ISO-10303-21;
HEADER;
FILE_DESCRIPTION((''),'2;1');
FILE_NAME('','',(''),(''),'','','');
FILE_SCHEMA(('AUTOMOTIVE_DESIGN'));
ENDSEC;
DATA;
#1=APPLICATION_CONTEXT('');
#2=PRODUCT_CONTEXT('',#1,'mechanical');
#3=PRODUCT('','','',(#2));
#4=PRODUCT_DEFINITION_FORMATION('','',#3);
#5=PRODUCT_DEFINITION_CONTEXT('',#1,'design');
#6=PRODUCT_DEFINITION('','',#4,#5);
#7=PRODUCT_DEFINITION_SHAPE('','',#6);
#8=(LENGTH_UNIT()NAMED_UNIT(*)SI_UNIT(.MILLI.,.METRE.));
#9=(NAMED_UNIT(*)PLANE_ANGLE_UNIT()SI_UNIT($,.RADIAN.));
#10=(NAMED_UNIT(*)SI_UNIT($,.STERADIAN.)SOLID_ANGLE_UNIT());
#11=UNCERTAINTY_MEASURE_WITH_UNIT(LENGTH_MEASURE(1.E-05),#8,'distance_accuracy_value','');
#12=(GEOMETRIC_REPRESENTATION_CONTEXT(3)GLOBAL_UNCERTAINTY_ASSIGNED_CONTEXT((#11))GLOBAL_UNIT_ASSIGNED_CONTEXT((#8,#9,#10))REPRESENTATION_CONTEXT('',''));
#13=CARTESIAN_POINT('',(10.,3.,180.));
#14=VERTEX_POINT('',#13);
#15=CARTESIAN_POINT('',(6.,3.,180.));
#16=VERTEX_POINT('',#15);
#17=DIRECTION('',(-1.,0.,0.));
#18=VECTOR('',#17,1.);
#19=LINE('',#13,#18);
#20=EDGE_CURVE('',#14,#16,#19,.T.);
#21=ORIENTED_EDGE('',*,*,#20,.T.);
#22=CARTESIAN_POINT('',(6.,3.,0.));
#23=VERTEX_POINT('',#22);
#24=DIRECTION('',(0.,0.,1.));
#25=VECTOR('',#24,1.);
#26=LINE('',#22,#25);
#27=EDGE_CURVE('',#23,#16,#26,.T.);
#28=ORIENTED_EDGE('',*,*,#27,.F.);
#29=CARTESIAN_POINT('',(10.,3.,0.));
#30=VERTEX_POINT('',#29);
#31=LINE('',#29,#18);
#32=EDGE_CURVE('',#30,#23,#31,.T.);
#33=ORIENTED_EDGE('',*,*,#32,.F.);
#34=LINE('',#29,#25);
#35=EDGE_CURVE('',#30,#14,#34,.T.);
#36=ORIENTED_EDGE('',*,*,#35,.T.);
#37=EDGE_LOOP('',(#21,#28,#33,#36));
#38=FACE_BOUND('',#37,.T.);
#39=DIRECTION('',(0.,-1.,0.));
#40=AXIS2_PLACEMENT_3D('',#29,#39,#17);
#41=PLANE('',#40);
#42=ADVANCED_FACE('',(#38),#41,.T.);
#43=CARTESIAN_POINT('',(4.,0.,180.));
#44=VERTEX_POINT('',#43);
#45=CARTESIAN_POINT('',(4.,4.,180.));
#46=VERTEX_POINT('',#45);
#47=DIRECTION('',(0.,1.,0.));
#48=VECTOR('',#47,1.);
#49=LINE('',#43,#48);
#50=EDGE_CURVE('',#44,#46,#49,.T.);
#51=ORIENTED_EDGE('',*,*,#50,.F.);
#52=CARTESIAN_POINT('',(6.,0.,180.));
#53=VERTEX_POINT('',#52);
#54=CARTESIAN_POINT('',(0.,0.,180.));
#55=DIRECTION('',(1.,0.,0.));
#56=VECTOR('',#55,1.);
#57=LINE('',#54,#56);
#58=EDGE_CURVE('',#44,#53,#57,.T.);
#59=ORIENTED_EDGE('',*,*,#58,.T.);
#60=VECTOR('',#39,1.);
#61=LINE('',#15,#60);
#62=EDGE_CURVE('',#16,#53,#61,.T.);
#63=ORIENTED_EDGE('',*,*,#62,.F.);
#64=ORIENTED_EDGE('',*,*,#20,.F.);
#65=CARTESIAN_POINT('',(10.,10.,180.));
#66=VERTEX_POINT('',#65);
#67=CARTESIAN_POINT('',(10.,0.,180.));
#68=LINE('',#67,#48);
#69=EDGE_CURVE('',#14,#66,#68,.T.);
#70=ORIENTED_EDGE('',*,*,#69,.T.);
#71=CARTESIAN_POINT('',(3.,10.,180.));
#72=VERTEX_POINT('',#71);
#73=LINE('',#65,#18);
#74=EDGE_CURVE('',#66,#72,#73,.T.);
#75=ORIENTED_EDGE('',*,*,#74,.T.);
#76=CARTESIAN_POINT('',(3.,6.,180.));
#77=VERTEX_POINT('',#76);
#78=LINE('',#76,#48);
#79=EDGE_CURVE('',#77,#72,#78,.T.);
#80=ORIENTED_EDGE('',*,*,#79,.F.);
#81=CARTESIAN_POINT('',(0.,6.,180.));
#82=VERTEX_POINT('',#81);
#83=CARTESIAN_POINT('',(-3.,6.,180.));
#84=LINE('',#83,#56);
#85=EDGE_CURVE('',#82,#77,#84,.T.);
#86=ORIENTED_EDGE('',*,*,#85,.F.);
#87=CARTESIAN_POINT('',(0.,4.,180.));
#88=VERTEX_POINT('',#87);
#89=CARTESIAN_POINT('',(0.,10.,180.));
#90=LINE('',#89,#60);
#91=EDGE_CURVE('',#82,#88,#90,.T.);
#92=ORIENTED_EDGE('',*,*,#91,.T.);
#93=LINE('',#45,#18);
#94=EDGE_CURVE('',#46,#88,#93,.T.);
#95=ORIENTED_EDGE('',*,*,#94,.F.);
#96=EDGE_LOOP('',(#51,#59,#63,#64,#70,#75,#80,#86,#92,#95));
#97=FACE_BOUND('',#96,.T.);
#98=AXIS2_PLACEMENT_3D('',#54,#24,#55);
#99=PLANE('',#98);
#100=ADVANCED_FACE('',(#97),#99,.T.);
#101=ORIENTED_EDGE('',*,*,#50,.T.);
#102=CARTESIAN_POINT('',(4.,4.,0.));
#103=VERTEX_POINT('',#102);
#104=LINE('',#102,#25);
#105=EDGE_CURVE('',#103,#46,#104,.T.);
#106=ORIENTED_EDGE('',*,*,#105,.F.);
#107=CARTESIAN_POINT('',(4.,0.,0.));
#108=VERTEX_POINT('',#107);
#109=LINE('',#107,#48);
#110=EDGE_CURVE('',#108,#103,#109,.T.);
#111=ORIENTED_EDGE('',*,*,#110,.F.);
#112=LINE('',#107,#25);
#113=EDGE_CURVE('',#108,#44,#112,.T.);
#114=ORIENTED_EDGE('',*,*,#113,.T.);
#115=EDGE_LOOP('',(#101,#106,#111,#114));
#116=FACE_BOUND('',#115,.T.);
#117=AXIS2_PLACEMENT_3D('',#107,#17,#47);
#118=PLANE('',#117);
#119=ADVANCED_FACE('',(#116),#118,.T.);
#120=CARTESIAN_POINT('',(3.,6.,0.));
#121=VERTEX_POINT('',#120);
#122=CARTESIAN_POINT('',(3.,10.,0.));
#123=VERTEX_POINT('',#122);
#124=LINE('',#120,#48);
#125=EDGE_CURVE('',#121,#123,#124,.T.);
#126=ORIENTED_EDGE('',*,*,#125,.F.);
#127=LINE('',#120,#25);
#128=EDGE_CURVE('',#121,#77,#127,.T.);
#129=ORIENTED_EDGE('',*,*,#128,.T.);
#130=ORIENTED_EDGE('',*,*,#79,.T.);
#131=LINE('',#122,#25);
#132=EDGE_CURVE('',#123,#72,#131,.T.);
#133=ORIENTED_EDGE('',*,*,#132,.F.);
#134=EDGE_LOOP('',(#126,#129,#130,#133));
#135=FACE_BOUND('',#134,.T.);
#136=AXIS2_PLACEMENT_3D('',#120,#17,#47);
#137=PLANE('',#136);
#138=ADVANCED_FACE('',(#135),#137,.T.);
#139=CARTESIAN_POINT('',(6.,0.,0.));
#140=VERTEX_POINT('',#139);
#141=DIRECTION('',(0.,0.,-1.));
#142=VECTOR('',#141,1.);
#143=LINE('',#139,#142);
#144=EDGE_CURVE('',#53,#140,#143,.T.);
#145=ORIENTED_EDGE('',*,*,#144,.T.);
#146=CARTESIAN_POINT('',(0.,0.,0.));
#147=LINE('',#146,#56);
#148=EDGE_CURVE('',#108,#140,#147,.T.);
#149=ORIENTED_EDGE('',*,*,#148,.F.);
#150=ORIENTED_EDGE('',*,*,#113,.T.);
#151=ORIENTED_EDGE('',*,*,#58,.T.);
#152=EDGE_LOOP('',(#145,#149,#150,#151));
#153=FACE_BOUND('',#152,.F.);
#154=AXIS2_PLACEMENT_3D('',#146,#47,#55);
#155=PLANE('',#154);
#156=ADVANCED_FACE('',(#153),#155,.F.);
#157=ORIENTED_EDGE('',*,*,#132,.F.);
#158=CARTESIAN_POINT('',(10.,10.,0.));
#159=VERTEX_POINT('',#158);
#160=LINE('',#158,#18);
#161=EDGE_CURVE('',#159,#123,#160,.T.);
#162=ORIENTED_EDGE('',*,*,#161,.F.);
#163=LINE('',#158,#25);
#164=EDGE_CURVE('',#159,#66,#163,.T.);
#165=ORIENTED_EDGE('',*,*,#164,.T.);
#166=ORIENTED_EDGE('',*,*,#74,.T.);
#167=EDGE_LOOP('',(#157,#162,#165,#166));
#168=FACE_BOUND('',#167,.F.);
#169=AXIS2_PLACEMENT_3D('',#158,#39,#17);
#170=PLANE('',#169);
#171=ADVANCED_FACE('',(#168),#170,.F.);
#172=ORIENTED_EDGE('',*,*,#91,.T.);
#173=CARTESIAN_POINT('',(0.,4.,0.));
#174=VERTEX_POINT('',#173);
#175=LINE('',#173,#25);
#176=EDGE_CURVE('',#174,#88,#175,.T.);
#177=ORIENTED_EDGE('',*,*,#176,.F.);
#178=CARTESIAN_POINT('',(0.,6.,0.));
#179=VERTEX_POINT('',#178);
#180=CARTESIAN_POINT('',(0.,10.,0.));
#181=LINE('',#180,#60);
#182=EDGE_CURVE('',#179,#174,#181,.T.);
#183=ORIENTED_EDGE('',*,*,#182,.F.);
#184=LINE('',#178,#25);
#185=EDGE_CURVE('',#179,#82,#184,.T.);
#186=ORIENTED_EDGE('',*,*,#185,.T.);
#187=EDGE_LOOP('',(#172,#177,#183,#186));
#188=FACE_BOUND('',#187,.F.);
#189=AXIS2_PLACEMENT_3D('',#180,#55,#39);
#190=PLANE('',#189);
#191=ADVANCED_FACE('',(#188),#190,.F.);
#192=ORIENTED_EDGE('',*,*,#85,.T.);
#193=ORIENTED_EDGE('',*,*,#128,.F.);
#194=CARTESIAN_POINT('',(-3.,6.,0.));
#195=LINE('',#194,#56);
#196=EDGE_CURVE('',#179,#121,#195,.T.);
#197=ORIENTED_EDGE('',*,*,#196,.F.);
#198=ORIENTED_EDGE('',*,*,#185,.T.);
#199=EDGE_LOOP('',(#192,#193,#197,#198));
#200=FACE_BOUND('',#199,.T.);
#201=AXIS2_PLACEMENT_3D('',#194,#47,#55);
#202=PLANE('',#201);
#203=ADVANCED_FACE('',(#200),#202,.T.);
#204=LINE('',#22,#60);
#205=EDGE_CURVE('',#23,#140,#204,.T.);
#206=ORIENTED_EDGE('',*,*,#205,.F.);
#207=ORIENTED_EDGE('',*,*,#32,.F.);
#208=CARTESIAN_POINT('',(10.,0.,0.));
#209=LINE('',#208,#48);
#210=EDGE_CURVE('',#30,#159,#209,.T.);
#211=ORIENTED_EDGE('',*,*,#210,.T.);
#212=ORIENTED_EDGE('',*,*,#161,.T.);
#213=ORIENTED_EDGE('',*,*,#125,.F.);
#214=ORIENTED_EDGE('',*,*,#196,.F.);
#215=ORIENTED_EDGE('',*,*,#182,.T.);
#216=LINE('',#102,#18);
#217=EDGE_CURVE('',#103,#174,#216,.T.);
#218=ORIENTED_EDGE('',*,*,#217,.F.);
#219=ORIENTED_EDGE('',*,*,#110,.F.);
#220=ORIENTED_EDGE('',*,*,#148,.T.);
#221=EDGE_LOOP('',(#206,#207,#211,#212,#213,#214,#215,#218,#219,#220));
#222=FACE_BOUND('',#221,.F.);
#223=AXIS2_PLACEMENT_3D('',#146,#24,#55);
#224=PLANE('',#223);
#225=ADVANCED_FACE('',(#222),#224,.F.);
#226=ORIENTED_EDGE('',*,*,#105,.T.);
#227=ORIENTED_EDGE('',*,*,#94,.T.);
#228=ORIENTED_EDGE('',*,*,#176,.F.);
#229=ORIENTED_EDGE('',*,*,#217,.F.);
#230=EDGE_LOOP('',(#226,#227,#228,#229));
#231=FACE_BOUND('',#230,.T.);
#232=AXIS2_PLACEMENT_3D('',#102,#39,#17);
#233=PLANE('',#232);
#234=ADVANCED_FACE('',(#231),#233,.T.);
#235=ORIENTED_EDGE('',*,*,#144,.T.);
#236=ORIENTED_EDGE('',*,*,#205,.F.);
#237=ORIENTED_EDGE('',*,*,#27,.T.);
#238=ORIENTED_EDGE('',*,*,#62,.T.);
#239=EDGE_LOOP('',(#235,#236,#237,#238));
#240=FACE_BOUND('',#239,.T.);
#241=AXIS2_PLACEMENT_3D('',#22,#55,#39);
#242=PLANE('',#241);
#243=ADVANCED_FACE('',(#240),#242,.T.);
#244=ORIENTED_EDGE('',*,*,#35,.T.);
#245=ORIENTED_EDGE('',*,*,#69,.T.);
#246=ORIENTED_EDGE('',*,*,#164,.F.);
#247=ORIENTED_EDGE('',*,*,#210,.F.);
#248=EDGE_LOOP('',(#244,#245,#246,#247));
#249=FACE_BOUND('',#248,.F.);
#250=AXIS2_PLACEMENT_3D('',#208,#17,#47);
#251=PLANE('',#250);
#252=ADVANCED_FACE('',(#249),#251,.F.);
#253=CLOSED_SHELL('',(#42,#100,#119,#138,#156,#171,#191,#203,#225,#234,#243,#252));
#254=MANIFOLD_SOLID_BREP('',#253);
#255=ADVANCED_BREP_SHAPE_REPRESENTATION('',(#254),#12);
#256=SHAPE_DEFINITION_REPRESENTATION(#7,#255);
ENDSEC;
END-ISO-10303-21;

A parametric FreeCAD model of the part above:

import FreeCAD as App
import Part
import Sketcher
from FreeCAD import Vector
Q = App.Units.Quantity

doc = App.newDocument("Part")
body = doc.addObject("PartDesign::Body", "Body")

# Sketch on XY plane
sketch1 = body.newObject("Sketcher::SketchObject", "Sketch")
sketch1.AttachmentSupport = (doc.getObject("XY_Plane"), [""])
sketch1.MapMode = "FlatFace"
sketch1.addGeometry([
    Part.LineSegment(Vector(0, 10, 0), Vector(0, 0, 0)),
    Part.LineSegment(Vector(0, 0, 0), Vector(10, 0, 0)),
    Part.LineSegment(Vector(10, 0, 0), Vector(10, 10, 0)),
    Part.LineSegment(Vector(10, 10, 0), Vector(0, 10, 0)),
], False)
sketch1.addConstraint([
    Sketcher.Constraint("Coincident", 0, 2, 1, 1),
    Sketcher.Constraint("Coincident", 1, 2, 2, 1),
    Sketcher.Constraint("Coincident", 2, 2, 3, 1),
    Sketcher.Constraint("Coincident", 3, 2, 0, 1),
    Sketcher.Constraint("Vertical", 0),
    Sketcher.Constraint("Horizontal", 1),
    Sketcher.Constraint("Vertical", 2),
    Sketcher.Constraint("Horizontal", 3),
    Sketcher.Constraint("Coincident", 0, 2, -1, 1),
    Sketcher.Constraint("Equal", 3, 0),
    Sketcher.Constraint("DistanceX", 1, 1, 1, 2, Q("10 mm")),
])
pad1 = body.newObject("PartDesign::Pad", "Pad")
pad1.Profile = sketch1
pad1.Length = 180

# Sketch on XY plane
sketch2 = body.newObject("Sketcher::SketchObject", "Sketch001")
sketch2.AttachmentSupport = (doc.getObject("XY_Plane"), [""])
sketch2.MapMode = "FlatFace"
sketch2.addGeometry([
    Part.LineSegment(Vector(0, 4, 0), Vector(0, 0, 0)),
    Part.LineSegment(Vector(0, 0, 0), Vector(4, 0, 0)),
    Part.LineSegment(Vector(4, 0, 0), Vector(4, 4, 0)),
    Part.LineSegment(Vector(4, 4, 0), Vector(0, 4, 0)),
], False)
sketch2.addConstraint([
    Sketcher.Constraint("Coincident", 0, 2, 1, 1),
    Sketcher.Constraint("Coincident", 1, 2, 2, 1),
    Sketcher.Constraint("Coincident", 2, 2, 3, 1),
    Sketcher.Constraint("Coincident", 3, 2, 0, 1),
    Sketcher.Constraint("Vertical", 0),
    Sketcher.Constraint("Horizontal", 1),
    Sketcher.Constraint("Vertical", 2),
    Sketcher.Constraint("Horizontal", 3),
    Sketcher.Constraint("Coincident", 0, 2, -1, 1),
    Sketcher.Constraint("Equal", 3, 0),
    Sketcher.Constraint("DistanceX", 1, 1, 1, 2, Q("4 mm")),
])
pocket1 = body.newObject("PartDesign::Pocket", "Pocket")
pocket1.Profile = sketch2
pocket1.Length = 180
pocket1.Reversed = True

# Sketch on XY plane
sketch3 = body.newObject("Sketcher::SketchObject", "Sketch002")
sketch3.AttachmentSupport = (doc.getObject("XY_Plane"), [""])
sketch3.MapMode = "FlatFace"
sketch3.addGeometry([
    Part.LineSegment(Vector(-3, 10, 0), Vector(-3, 6, 0)),
    Part.LineSegment(Vector(-3, 6, 0), Vector(3, 6, 0)),
    Part.LineSegment(Vector(3, 6, 0), Vector(3, 10, 0)),
    Part.LineSegment(Vector(3, 10, 0), Vector(-3, 10, 0)),
], False)
sketch3.addConstraint([
    Sketcher.Constraint("Coincident", 0, 2, 1, 1),
    Sketcher.Constraint("Coincident", 1, 2, 2, 1),
    Sketcher.Constraint("Coincident", 2, 2, 3, 1),
    Sketcher.Constraint("Coincident", 3, 2, 0, 1),
    Sketcher.Constraint("Vertical", 0),
    Sketcher.Constraint("Horizontal", 1),
    Sketcher.Constraint("Vertical", 2),
    Sketcher.Constraint("Horizontal", 3),
    Sketcher.Constraint("DistanceX", 1, 1, 1, 2, Q("6 mm")),
    Sketcher.Constraint("DistanceY", 0, 2, 0, 1, Q("4 mm")),
    Sketcher.Constraint("DistanceX", 0, 2, -1, 1, Q("3 mm")),
    Sketcher.Constraint("DistanceY", -1, 1, 0, 2, Q("6 mm")),
])
pocket2 = body.newObject("PartDesign::Pocket", "Pocket001")
pocket2.Profile = sketch3
pocket2.Length = 180
pocket2.Reversed = True

# Sketch on XY plane
sketch4 = body.newObject("Sketcher::SketchObject", "Sketch003")
sketch4.AttachmentSupport = (doc.getObject("XY_Plane"), [""])
sketch4.MapMode = "FlatFace"
sketch4.addGeometry([
    Part.LineSegment(Vector(-3, -6, 0), Vector(-3, -10, 0)),
    Part.LineSegment(Vector(-3, -10, 0), Vector(3, -10, 0)),
    Part.LineSegment(Vector(3, -10, 0), Vector(3, -6, 0)),
    Part.LineSegment(Vector(3, -6, 0), Vector(-3, -6, 0)),
], False)
sketch4.addConstraint([
    Sketcher.Constraint("Coincident", 0, 2, 1, 1),
    Sketcher.Constraint("Coincident", 1, 2, 2, 1),
    Sketcher.Constraint("Coincident", 2, 2, 3, 1),
    Sketcher.Constraint("Coincident", 3, 2, 0, 1),
    Sketcher.Constraint("Vertical", 0),
    Sketcher.Constraint("Horizontal", 1),
    Sketcher.Constraint("Vertical", 2),
    Sketcher.Constraint("Horizontal", 3),
    Sketcher.Constraint("DistanceX", 1, 1, 1, 2, Q("6 mm")),
    Sketcher.Constraint("DistanceY", 0, 2, 0, 1, Q("4 mm")),
    Sketcher.Constraint("DistanceX", 0, 2, -1, 1, Q("3 mm")),
    Sketcher.Constraint("DistanceY", 0, 2, -1, 1, Q("10 mm")),
])
pocket3 = body.newObject("PartDesign::Pocket", "Pocket002")
pocket3.Profile = sketch4
pocket3.Length = 180
pocket3.Reversed = True

# Sketch on XY plane
sketch5 = body.newObject("Sketcher::SketchObject", "Sketch004")
sketch5.AttachmentSupport = (doc.getObject("XY_Plane"), [""])
sketch5.MapMode = "FlatFace"
sketch5.addGeometry([
    Part.LineSegment(Vector(-10, 3, 0), Vector(-10, -3, 0)),
    Part.LineSegment(Vector(-10, -3, 0), Vector(-6, -3, 0)),
    Part.LineSegment(Vector(-6, -3, 0), Vector(-6, 3, 0)),
    Part.LineSegment(Vector(-6, 3, 0), Vector(-10, 3, 0)),
], False)
sketch5.addConstraint([
    Sketcher.Constraint("Coincident", 0, 2, 1, 1),
    Sketcher.Constraint("Coincident", 1, 2, 2, 1),
    Sketcher.Constraint("Coincident", 2, 2, 3, 1),
    Sketcher.Constraint("Coincident", 3, 2, 0, 1),
    Sketcher.Constraint("Vertical", 0),
    Sketcher.Constraint("Horizontal", 1),
    Sketcher.Constraint("Vertical", 2),
    Sketcher.Constraint("Horizontal", 3),
    Sketcher.Constraint("DistanceX", 1, 1, 1, 2, Q("4 mm")),
    Sketcher.Constraint("DistanceY", 0, 2, 0, 1, Q("6 mm")),
    Sketcher.Constraint("DistanceX", 0, 2, -1, 1, Q("10 mm")),
    Sketcher.Constraint("DistanceY", 0, 2, -1, 1, Q("3 mm")),
])
pocket4 = body.newObject("PartDesign::Pocket", "Pocket003")
pocket4.Profile = sketch5
pocket4.Length = 180
pocket4.Reversed = True

# Sketch on XY plane
sketch6 = body.newObject("Sketcher::SketchObject", "Sketch005")
sketch6.AttachmentSupport = (doc.getObject("XY_Plane"), [""])
sketch6.MapMode = "FlatFace"
sketch6.addGeometry([
    Part.LineSegment(Vector(6, 3, 0), Vector(6, -3, 0)),
    Part.LineSegment(Vector(6, -3, 0), Vector(10, -3, 0)),
    Part.LineSegment(Vector(10, -3, 0), Vector(10, 3, 0)),
    Part.LineSegment(Vector(10, 3, 0), Vector(6, 3, 0)),
], False)
sketch6.addConstraint([
    Sketcher.Constraint("Coincident", 0, 2, 1, 1),
    Sketcher.Constraint("Coincident", 1, 2, 2, 1),
    Sketcher.Constraint("Coincident", 2, 2, 3, 1),
    Sketcher.Constraint("Coincident", 3, 2, 0, 1),
    Sketcher.Constraint("Vertical", 0),
    Sketcher.Constraint("Horizontal", 1),
    Sketcher.Constraint("Vertical", 2),
    Sketcher.Constraint("Horizontal", 3),
    Sketcher.Constraint("DistanceX", 1, 1, 1, 2, Q("4 mm")),
    Sketcher.Constraint("DistanceY", 0, 2, 0, 1, Q("6 mm")),
    Sketcher.Constraint("DistanceX", -1, 1, 0, 2, Q("6 mm")),
    Sketcher.Constraint("DistanceY", 0, 2, -1, 1, Q("3 mm")),
])
pocket5 = body.newObject("PartDesign::Pocket", "Pocket004")
pocket5.Profile = sketch6
pocket5.Length = 180
pocket5.Reversed = True

# Sketch on XY plane
sketch7 = body.newObject("Sketcher::SketchObject", "Sketch006")
sketch7.AttachmentSupport = (doc.getObject("XY_Plane"), [""])
sketch7.MapMode = "FlatFace"
sketch7.addGeometry(Part.Circle(Vector(0, 0, 0), Vector(0, 0, 1), 2.5), False)
sketch7.addConstraint([
    Sketcher.Constraint("Coincident", 0, 3, -1, 1),
    Sketcher.Constraint("Diameter", 0, Q("5 mm")),
])
pocket6 = body.newObject("PartDesign::Pocket", "Pocket005")
pocket6.Profile = sketch7
pocket6.Length = 10
pocket6.Reversed = True

# Sketch on XY plane
sketch8 = body.newObject("Sketcher::SketchObject", "Sketch007")
sketch8.AttachmentSupport = (doc.getObject("XY_Plane"), [""])
sketch8.MapMode = "FlatFace"
sketch8.AttachmentOffset = App.Placement(Vector(0, 0, 180), App.Rotation())
sketch8.addGeometry(Part.Circle(Vector(0, 0, 0), Vector(0, 0, 1), 2.5), False)
sketch8.addConstraint([
    Sketcher.Constraint("Coincident", 0, 3, -1, 1),
    Sketcher.Constraint("Diameter", 0, Q("5 mm")),
])
pocket7 = body.newObject("PartDesign::Pocket", "Pocket006")
pocket7.Profile = sketch8
pocket7.Length = 10
pocket7.Reversed = True

doc.recompute()
